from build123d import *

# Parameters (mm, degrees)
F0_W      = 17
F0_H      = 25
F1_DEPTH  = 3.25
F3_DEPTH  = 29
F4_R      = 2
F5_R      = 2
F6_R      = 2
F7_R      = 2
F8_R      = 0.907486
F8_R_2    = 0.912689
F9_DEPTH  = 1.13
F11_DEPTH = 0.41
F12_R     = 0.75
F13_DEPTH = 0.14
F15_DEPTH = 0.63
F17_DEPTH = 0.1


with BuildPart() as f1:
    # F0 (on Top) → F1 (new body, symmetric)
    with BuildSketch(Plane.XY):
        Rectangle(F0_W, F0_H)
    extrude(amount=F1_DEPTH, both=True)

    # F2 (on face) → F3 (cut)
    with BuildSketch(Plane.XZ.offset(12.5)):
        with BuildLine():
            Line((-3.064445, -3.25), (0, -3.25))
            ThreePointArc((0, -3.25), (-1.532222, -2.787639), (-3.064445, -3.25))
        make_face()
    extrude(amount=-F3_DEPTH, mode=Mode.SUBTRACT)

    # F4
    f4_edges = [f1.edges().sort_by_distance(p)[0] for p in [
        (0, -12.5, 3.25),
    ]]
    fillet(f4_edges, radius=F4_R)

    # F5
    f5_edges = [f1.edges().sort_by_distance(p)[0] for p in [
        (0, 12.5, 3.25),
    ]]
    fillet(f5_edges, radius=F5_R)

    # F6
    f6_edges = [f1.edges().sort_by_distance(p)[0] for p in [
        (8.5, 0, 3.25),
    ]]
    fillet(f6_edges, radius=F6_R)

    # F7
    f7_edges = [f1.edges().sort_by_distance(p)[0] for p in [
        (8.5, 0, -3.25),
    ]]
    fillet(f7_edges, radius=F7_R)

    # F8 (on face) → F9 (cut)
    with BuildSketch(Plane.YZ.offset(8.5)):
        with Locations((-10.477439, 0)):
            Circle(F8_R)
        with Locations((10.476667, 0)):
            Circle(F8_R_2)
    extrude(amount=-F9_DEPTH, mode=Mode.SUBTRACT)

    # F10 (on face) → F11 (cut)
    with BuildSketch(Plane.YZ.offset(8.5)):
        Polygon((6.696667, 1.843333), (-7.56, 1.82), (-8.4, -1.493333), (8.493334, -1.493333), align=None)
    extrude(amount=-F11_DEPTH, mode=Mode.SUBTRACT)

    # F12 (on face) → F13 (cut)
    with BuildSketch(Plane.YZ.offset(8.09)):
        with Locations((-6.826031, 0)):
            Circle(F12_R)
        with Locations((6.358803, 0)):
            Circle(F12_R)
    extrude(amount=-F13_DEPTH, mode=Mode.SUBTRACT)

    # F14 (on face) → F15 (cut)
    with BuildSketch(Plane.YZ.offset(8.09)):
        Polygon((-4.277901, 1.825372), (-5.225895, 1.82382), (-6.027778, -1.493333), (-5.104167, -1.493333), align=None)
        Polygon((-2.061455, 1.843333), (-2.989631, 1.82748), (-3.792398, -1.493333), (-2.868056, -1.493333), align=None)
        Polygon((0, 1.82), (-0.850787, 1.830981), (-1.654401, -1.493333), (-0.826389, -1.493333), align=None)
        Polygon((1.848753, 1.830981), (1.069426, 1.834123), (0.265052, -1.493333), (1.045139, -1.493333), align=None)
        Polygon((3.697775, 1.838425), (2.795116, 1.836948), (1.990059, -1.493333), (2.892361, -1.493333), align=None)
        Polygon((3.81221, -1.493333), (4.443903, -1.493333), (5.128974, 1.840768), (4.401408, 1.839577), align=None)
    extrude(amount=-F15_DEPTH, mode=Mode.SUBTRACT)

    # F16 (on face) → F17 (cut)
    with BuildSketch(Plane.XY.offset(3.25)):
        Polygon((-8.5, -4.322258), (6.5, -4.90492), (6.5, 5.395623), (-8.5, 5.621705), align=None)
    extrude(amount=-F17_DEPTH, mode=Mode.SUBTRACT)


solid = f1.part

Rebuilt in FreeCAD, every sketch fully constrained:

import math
import FreeCAD as App
import Part
import Sketcher

V = App.Vector
Q = App.Units.Quantity


def edges_at(feature, points):
    """Names of the edges that pass closest to the given points."""
    edges = feature.Shape.Edges
    near = lambda p: min(range(len(edges)), key=lambda i: edges[i].distToShape(Part.Vertex(*p))[0])
    return sorted({f"Edge{near(p) + 1}" for p in points})


def add_polygon(sketch, points):
    """Adds a closed chain of lines whose ends are joined by coincident constraints."""
    first, n = sketch.GeometryCount, len(points)
    for a, b in zip(points, points[1:] + points[:1]):
        sketch.addGeometry(Part.LineSegment(App.Vector(*a, 0), App.Vector(*b, 0)), False)
    for i in range(n):
        sketch.addConstraint(Sketcher.Constraint("Coincident", first + i, 2, first + (i + 1) % n, 1))

doc = App.newDocument("Part")
params = doc.addObject("Spreadsheet::Sheet", "Params")
for row, (alias, value) in enumerate([
    ("sketch1_width", "17 mm"),
    ("sketch1_height", "25 mm"),
    ("pad1_length", "6.5 mm"),
    ("pocket1_length", "29 mm"),
    ("fillet_radius", "2 mm"),
    ("fillet2_radius", "2 mm"),
    ("fillet3_radius", "2 mm"),
    ("fillet4_radius", "2 mm"),
    ("pocket2_length", "1.13 mm"),
    ("pocket3_length", "0.41 mm"),
    ("sketch5_diameter", "1.5 mm"),
    ("pocket4_length", "0.14 mm"),
    ("pocket5_length", "0.63 mm"),
    ("pocket6_length", "0.1 mm"),
], start=1):
    params.set(f"A{row}", alias)
    params.set(f"B{row}", "=" + value)
    params.setAlias(f"B{row}", alias)

body = doc.addObject("PartDesign::Body", "Body")

sketch1 = body.newObject("Sketcher::SketchObject", "Sketch")
sketch1.AttachmentSupport = (doc.getObject("XY_Plane"), [""])
sketch1.MapMode = "FlatFace"
add_polygon(sketch1, [(-8, 12), (-8, -12), (8, -12), (8, 12)])
sketch1.addConstraint([
    Sketcher.Constraint("Vertical", 0),
    Sketcher.Constraint("Horizontal", 1),
    Sketcher.Constraint("Vertical", 2),
    Sketcher.Constraint("Horizontal", 3),
    Sketcher.Constraint("Symmetric", 0, 2, 2, 2, -1, 1),
    Sketcher.Constraint("DistanceX", 1, 1, 1, 2, Q("17 mm")),
    Sketcher.Constraint("DistanceY", 0, 2, 0, 1, Q("25 mm")),
])
sketch1.setExpression("Constraints[9]", "Params.sketch1_width")
sketch1.setExpression("Constraints[10]", "Params.sketch1_height")
pad1 = body.newObject("PartDesign::Pad", "Pad")
pad1.Profile = sketch1
pad1.setExpression("Length", "Params.pad1_length")
pad1.Midplane = True

sketch2 = body.newObject("Sketcher::SketchObject", "Sketch001")
sketch2.AttachmentSupport = (doc.getObject("XZ_Plane"), [""])
sketch2.MapMode = "FlatFace"
sketch2.AttachmentOffset = App.Placement(V(0, 0, 12.5), App.Rotation())
sketch2.addGeometry([
    Part.LineSegment(V(-3.1, -3.2, 0), V(0, -3.2, 0)),
    Part.ArcOfCircle(Part.Circle(V(-1.5, -5.6, 0), V(0, 0, 1), 2.8), math.radians(56), math.radians(124)),
], False)
sketch2.addConstraint([
    Sketcher.Constraint("Coincident", 0, 1, 1, 2),
    Sketcher.Constraint("Coincident", 1, 1, 0, 2),
    Sketcher.Constraint("Horizontal", 0),
    Sketcher.Constraint("PointOnObject", 1, 1, -2),
    Sketcher.Constraint("DistanceY", 0, 1, -1, 1, Q("3.25 mm")),
    Sketcher.Constraint("Radius", 1, Q("2.770004 mm")),
    Sketcher.Constraint("DistanceX", 0, 1, 0, 2, Q("3.064445 mm")),
])
pocket1 = body.newObject("PartDesign::Pocket", "Pocket")
pocket1.Profile = sketch2
pocket1.setExpression("Length", "Params.pocket1_length")
doc.recompute()

fillet = body.newObject("PartDesign::Fillet", "Fillet")
fillet.Base = (pocket1, edges_at(pocket1, [(0, -12.5, 3.25)]))
fillet.setExpression("Radius", "Params.fillet_radius")
doc.recompute()

fillet2 = body.newObject("PartDesign::Fillet", "Fillet001")
fillet2.Base = (fillet, edges_at(fillet, [(0, 12.5, 3.25)]))
fillet2.setExpression("Radius", "Params.fillet2_radius")
doc.recompute()

fillet3 = body.newObject("PartDesign::Fillet", "Fillet002")
fillet3.Base = (fillet2, edges_at(fillet2, [(8.5, 0, 3.25)]))
fillet3.setExpression("Radius", "Params.fillet3_radius")
doc.recompute()

fillet4 = body.newObject("PartDesign::Fillet", "Fillet003")
fillet4.Base = (fillet3, edges_at(fillet3, [(8.5, 0, -3.25)]))
fillet4.setExpression("Radius", "Params.fillet4_radius")

sketch3 = body.newObject("Sketcher::SketchObject", "Sketch002")
sketch3.AttachmentSupport = (doc.getObject("YZ_Plane"), [""])
sketch3.MapMode = "FlatFace"
sketch3.AttachmentOffset = App.Placement(V(0, 0, 8.5), App.Rotation())
sketch3.addGeometry([
    Part.Circle(V(-10.5, 0, 0), V(0, 0, 1), 0.9),
    Part.Circle(V(10.5, 0, 0), V(0, 0, 1), 0.9),
], False)
sketch3.addConstraint([
    Sketcher.Constraint("PointOnObject", 0, 3, -1),
    Sketcher.Constraint("PointOnObject", 1, 3, -1),
    Sketcher.Constraint("Diameter", 0, Q("1.814972 mm")),
    Sketcher.Constraint("Diameter", 1, Q("1.825378 mm")),
    Sketcher.Constraint("DistanceX", 0, 3, -1, 1, Q("10.477439 mm")),
    Sketcher.Constraint("DistanceX", -1, 1, 1, 3, Q("10.476667 mm")),
])
pocket2 = body.newObject("PartDesign::Pocket", "Pocket001")
pocket2.Profile = sketch3
pocket2.setExpression("Length", "Params.pocket2_length")

sketch4 = body.newObject("Sketcher::SketchObject", "Sketch003")
sketch4.AttachmentSupport = (doc.getObject("YZ_Plane"), [""])
sketch4.MapMode = "FlatFace"
sketch4.AttachmentOffset = App.Placement(V(0, 0, 8.5), App.Rotation())
add_polygon(sketch4, [(6.7, 1.8), (-7.6, 1.8), (-8.4, -1.5), (8.5, -1.5)])
sketch4.addConstraint([
    Sketcher.Constraint("Horizontal", 2),
    Sketcher.Constraint("DistanceX", 1, 2, -1, 1, Q("8.4 mm")),
    Sketcher.Constraint("DistanceX", 0, 2, -1, 1, Q("7.56 mm")),
    Sketcher.Constraint("DistanceY", -1, 1, 0, 2, Q("1.82 mm")),
    Sketcher.Constraint("DistanceX", 2, 1, 2, 2, Q("16.893334 mm")),
    Sketcher.Constraint("Distance", 0, Q("14.256686 mm")),
    Sketcher.Constraint("Distance", 1, Q("3.418154 mm")),
    Sketcher.Constraint("Distance", 3, Q("3.789637 mm")),
])
pocket3 = body.newObject("PartDesign::Pocket", "Pocket002")
pocket3.Profile = sketch4
pocket3.setExpression("Length", "Params.pocket3_length")

sketch5 = body.newObject("Sketcher::SketchObject", "Sketch004")
sketch5.AttachmentSupport = (doc.getObject("YZ_Plane"), [""])
sketch5.MapMode = "FlatFace"
sketch5.AttachmentOffset = App.Placement(V(0, 0, 8.09), App.Rotation())
sketch5.addGeometry([
    Part.Circle(V(-6.8, 0, 0), V(0, 0, 1), 0.8),
    Part.Circle(V(6.4, 0, 0), V(0, 0, 1), 0.8),
], False)
sketch5.addConstraint([
    Sketcher.Constraint("Equal", 0, 1),
    Sketcher.Constraint("PointOnObject", 0, 3, -1),
    Sketcher.Constraint("PointOnObject", 1, 3, -1),
    Sketcher.Constraint("Diameter", 0, Q("1.5 mm")),
    Sketcher.Constraint("DistanceX", 0, 3, -1, 1, Q("6.826031 mm")),
    Sketcher.Constraint("DistanceX", -1, 1, 1, 3, Q("6.358803 mm")),
])
sketch5.setExpression("Constraints[3]", "Params.sketch5_diameter")
pocket4 = body.newObject("PartDesign::Pocket", "Pocket003")
pocket4.Profile = sketch5
pocket4.setExpression("Length", "Params.pocket4_length")

sketch6 = body.newObject("Sketcher::SketchObject", "Sketch005")
sketch6.AttachmentSupport = (doc.getObject("YZ_Plane"), [""])
sketch6.MapMode = "FlatFace"
sketch6.AttachmentOffset = App.Placement(V(0, 0, 8.09), App.Rotation())
add_polygon(sketch6, [(-4.3, 1.8), (-5.2, 1.8), (-6, -1.5), (-5.1, -1.5)])
add_polygon(sketch6, [(-2.1, 1.8), (-3, 1.8), (-3.8, -1.5), (-2.9, -1.5)])
add_polygon(sketch6, [(0, 1.8), (-0.9, 1.8), (-1.7, -1.5), (-0.8, -1.5)])
add_polygon(sketch6, [(1.8, 1.8), (1.1, 1.8), (0.3, -1.5), (1, -1.5)])
add_polygon(sketch6, [(3.7, 1.8), (2.8, 1.8), (2, -1.5), (2.9, -1.5)])
add_polygon(sketch6, [(3.8, -1.5), (4.4, -1.5), (5.1, 1.8), (4.4, 1.8)])
sketch6.addConstraint([
    Sketcher.Constraint("Horizontal", 2),
    Sketcher.Constraint("Horizontal", 6),
    Sketcher.Constraint("Horizontal", 10),
    Sketcher.Constraint("Horizontal", 14),
    Sketcher.Constraint("Horizontal", 18),
    Sketcher.Constraint("Horizontal", 20),
    Sketcher.Constraint("PointOnObject", 11, 2, -2),
    Sketcher.Constraint("Parallel", 1, 5),
    Sketcher.Constraint("Parallel", 5, 7),
    Sketcher.Constraint("Parallel", 7, 9),
    Sketcher.Constraint("Parallel", 9, 13),
    Sketcher.Constraint("Parallel", 13, 15),
    Sketcher.Constraint("Parallel", 0, 16),
    Sketcher.Constraint("Parallel", 15, 17),
    Sketcher.Constraint("Parallel", 17, 19),
    Sketcher.Constraint("Parallel", 16, 22),
    Sketcher.Constraint("Horizontal", 2, 2, 5, 2),
    Sketcher.Constraint("Horizontal", 6, 2, 9, 2),
    Sketcher.Constraint("Horizontal", 10, 2, 13, 2),
    Sketcher.Constraint("Horizontal", 8, 2, 15, 2),
    Sketcher.Constraint("Horizontal", 14, 2, 17, 2),
    Sketcher.Constraint("Horizontal", 18, 2, 20, 2),
    Sketcher.Constraint("DistanceY", -1, 1, 11, 2, Q("1.82 mm")),
    Sketcher.Constraint("Distance", 1, Q("3.4127 mm")),
    Sketcher.Constraint("Distance", 13, Q("3.4233 mm")),
    Sketcher.Constraint("DistanceX", 2, 1, 2, 2, Q("0.923611 mm")),
    Sketcher.Constraint("DistanceX", 6, 1, 6, 2, Q("0.924342 mm")),
    Sketcher.Constraint("DistanceX", 10, 1, 10, 2, Q("0.828012 mm")),
    Sketcher.Constraint("DistanceX", 3, 2, -1, 1, Q("4.277901 mm")),
    Sketcher.Constraint("DistanceX", 9, 2, -1, 1, Q("1.654401 mm")),
    Sketcher.Constraint("DistanceX", 6, 2, 7, 2, Q("0.806601 mm")),
    Sketcher.Constraint("DistanceY", 4, 2, 8, 2, Q("0.003501 mm")),
    Sketcher.Constraint("DistanceX", 13, 2, 15, 2, Q("1.583701 mm")),
    Sketcher.Constraint("DistanceX", 19, 2, 21, 2, Q("1.431199 mm")),
    Sketcher.Constraint("DistanceY", 20, 2, 21, 2, Q("3.334101 mm")),
    Sketcher.Constraint("Distance", 4, Q("0.928311 mm")),
    Sketcher.Constraint("Distance", 16, Q("0.90266 mm")),
    Sketcher.Constraint("Distance", 23, Q("3.384589 mm")),
    Sketcher.Constraint("DistanceX", 18, 1, 18, 2, Q("0.902302 mm")),
    Sketcher.Constraint("DistanceX", 20, 1, 20, 2, Q("0.631693 mm")),
    Sketcher.Constraint("DistanceY", -1, 1, 0, 2, Q("1.82382 mm")),
    Sketcher.Constraint("DistanceX", 4, 2, -1, 1, Q("2.989631 mm")),
    Sketcher.Constraint("DistanceY", -1, 1, 4, 2, Q("1.82748 mm")),
    Sketcher.Constraint("DistanceX", -1, 1, 14, 2, Q("1.045139 mm")),
    Sketcher.Constraint("DistanceX", -1, 1, 17, 2, Q("1.990059 mm")),
    Sketcher.Constraint("DistanceX", -1, 1, 23, 2, Q("3.81221 mm")),
    Sketcher.Constraint("DistanceX", 2, 2, 5, 2, Q("1.311769 mm")),
    Sketcher.Constraint("DistanceX", 12, 2, 16, 2, Q("1.72569 mm")),
])
pocket5 = body.newObject("PartDesign::Pocket", "Pocket004")
pocket5.Profile = sketch6
pocket5.setExpression("Length", "Params.pocket5_length")

sketch7 = body.newObject("Sketcher::SketchObject", "Sketch006")
sketch7.AttachmentSupport = (doc.getObject("XY_Plane"), [""])
sketch7.MapMode = "FlatFace"
sketch7.AttachmentOffset = App.Placement(V(0, 0, 3.25), App.Rotation())
add_polygon(sketch7, [(-8, -4), (6, -5), (6, 5), (-8, 6)])
sketch7.addConstraint([
    Sketcher.Constraint("Vertical", 1),
    Sketcher.Constraint("Vertical", 3),
    Sketcher.Constraint("DistanceX", 2, 2, 1, 2, Q("15 mm")),
    Sketcher.Constraint("DistanceX", -1, 1, 0, 2, Q("6.5 mm")),
    Sketcher.Constraint("DistanceY", 1, 1, 1, 2, Q("10.300543 mm")),
    Sketcher.Constraint("DistanceY", 3, 2, 3, 1, Q("9.943963 mm")),
    Sketcher.Constraint("DistanceY", 0, 2, -1, 1, Q("4.90492 mm")),
    Sketcher.Constraint("DistanceY", 3, 2, 1, 2, Q("9.717881 mm")),
])
pocket6 = body.newObject("PartDesign::Pocket", "Pocket005")
pocket6.Profile = sketch7
pocket6.setExpression("Length", "Params.pocket6_length")

doc.recompute()
